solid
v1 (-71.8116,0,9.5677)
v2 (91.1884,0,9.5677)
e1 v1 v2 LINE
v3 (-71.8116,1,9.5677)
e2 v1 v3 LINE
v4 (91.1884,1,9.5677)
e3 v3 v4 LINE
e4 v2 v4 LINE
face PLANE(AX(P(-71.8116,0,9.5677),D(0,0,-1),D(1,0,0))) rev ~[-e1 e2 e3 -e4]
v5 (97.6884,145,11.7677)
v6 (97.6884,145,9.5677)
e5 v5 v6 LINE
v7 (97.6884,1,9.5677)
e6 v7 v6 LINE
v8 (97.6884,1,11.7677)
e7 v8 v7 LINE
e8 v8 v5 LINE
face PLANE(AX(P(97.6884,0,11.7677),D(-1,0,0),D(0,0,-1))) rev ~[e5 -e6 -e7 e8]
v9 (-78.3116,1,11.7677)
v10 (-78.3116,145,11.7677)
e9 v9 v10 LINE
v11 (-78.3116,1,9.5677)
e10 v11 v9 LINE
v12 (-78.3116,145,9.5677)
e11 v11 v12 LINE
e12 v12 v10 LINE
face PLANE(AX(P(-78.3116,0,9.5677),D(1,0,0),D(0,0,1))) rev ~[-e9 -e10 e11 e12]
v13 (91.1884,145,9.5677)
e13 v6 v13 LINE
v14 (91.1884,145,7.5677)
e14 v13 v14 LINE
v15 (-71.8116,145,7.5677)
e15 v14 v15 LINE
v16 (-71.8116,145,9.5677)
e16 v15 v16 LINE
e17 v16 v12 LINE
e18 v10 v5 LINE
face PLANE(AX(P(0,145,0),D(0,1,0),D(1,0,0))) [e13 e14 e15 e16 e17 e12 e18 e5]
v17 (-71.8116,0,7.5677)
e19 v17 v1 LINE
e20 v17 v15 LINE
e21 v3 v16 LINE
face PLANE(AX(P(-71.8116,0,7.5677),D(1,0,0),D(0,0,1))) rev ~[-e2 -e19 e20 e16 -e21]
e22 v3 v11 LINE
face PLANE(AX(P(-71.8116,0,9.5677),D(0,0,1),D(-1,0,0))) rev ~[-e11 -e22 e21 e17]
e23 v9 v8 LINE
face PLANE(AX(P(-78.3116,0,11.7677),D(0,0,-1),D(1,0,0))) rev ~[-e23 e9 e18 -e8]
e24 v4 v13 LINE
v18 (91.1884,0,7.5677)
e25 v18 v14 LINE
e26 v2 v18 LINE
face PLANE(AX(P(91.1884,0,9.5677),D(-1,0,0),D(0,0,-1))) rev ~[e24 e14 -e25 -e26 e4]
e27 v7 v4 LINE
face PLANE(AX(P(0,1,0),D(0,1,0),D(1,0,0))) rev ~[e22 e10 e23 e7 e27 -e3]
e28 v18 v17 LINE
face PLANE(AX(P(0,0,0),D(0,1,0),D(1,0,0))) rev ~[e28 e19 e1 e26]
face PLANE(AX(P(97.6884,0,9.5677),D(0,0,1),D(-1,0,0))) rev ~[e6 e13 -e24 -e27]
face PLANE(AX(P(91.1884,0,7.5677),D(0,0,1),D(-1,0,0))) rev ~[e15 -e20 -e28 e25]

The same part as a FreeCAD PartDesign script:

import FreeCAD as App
import Part
import Sketcher

V = App.Vector
Q = App.Units.Quantity


def add_polygon(sketch, points):
    """Adds a closed chain of lines whose ends are joined by coincident constraints."""
    first, n = sketch.GeometryCount, len(points)
    for a, b in zip(points, points[1:] + points[:1]):
        sketch.addGeometry(Part.LineSegment(App.Vector(*a, 0), App.Vector(*b, 0)), False)
    for i in range(n):
        sketch.addConstraint(Sketcher.Constraint("Coincident", first + i, 2, first + (i + 1) % n, 1))

doc = App.newDocument("Part")
body = doc.addObject("PartDesign::Body", "Body")

sketch1 = doc.addObject("Sketcher::SketchObject", "Sketch")
body.addObject(sketch1)
sketch1.AttachmentSupport = (doc.XZ_Plane, [""])
sketch1.MapMode = "FlatFace"
add_polygon(sketch1, [(-71.8116, 7.5677), (-71.8116, 9.5677), (-78.3116, 9.5677), (-78.3116, 11.7677), (97.6884, 11.7677), (97.6884, 9.5677), (91.1884, 9.5677), (91.1884, 7.5677)])
sketch1.addConstraint([
    Sketcher.Constraint("Vertical", 0),
    Sketcher.Constraint("Horizontal", 1),
    Sketcher.Constraint("Vertical", 2),
    Sketcher.Constraint("Horizontal", 3),
    Sketcher.Constraint("Vertical", 4),
    Sketcher.Constraint("Horizontal", 5),
    Sketcher.Constraint("Vertical", 6),
    Sketcher.Constraint("Horizontal", 7),
    Sketcher.Constraint("Horizontal", 1, 2, 4, 2),
    Sketcher.Constraint("Equal", 1, 5),
    Sketcher.Constraint("DistanceX", 7, 2, 7, 1, Q("163 mm")),
    Sketcher.Constraint("DistanceY", 0, 1, 0, 2, Q("2 mm")),
    Sketcher.Constraint("DistanceX", 1, 2, 1, 1, Q("6.5 mm")),
    Sketcher.Constraint("DistanceY", 2, 1, 2, 2, Q("2.2 mm")),
    Sketcher.Constraint("DistanceX", 0, 2, -1, 1, Q("71.8116 mm")),
    Sketcher.Constraint("DistanceY", -1, 1, 0, 2, Q("9.5677 mm")),
])
pad1 = doc.addObject("PartDesign::Pad", "Pad")
body.addObject(pad1)
pad1.Profile = sketch1
pad1.Length = 145
pad1.Reversed = True

sketch2 = doc.addObject("Sketcher::SketchObject", "Sketch001")
body.addObject(sketch2)
sketch2.AttachmentSupport = (doc.XZ_Plane, [""])
sketch2.MapMode = "FlatFace"
add_polygon(sketch2, [(97.6884, 9.5677), (-78.3116, 9.5677), (-78.3116, 11.7677), (97.6884, 11.7677)])
sketch2.addConstraint([
    Sketcher.Constraint("Horizontal", 0),
    Sketcher.Constraint("Vertical", 1),
    Sketcher.Constraint("Horizontal", 2),
    Sketcher.Constraint("Vertical", 3),
    Sketcher.Constraint("DistanceY", 1, 1, 1, 2, Q("2.2 mm")),
    Sketcher.Constraint("DistanceX", 0, 2, 0, 1, Q("176 mm")),
    Sketcher.Constraint("DistanceX", 0, 2, -1, 1, Q("78.3116 mm")),
    Sketcher.Constraint("DistanceY", -1, 1, 0, 2, Q("9.5677 mm")),
])
pocket1 = doc.addObject("PartDesign::Pocket", "Pocket")
body.addObject(pocket1)
pocket1.Profile = sketch2
pocket1.Length = 1

doc.recompute()
